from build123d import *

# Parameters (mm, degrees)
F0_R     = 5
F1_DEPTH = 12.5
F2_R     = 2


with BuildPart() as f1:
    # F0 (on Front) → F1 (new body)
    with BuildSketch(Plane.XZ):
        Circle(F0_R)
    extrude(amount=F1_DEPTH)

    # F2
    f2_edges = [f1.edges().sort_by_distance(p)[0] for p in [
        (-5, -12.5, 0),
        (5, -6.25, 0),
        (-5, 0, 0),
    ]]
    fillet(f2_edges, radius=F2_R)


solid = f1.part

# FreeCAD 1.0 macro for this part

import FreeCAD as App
import Part
import Sketcher

V = App.Vector
Q = App.Units.Quantity

doc = App.newDocument("Part")
params = doc.addObject("Spreadsheet::Sheet", "Params")
for row, (alias, value) in enumerate([
    ("sketch1_diameter", "10 mm"),
    ("pad1_length", "12.5 mm"),
    ("fillet_radius", "2 mm"),
], start=1):
    params.set(f"A{row}", alias)
    params.set(f"B{row}", "=" + value)
    params.setAlias(f"B{row}", alias)

body = doc.addObject("PartDesign::Body", "Body")

sketch1 = body.newObject("Sketcher::SketchObject", "Sketch")
sketch1.AttachmentSupport = (doc.getObject("XZ_Plane"), [""])
sketch1.MapMode = "FlatFace"
sketch1.addGeometry(Part.Circle(V(0, 0, 0), V(0, 0, 1), 5), False)
sketch1.addConstraint([
    Sketcher.Constraint("Coincident", 0, 3, -1, 1),
    Sketcher.Constraint("Diameter", 0, Q("10 mm")),
])
sketch1.setExpression("Constraints[1]", "Params.sketch1_diameter")
pad1 = body.newObject("PartDesign::Pad", "Pad")
pad1.Profile = sketch1
pad1.setExpression("Length", "Params.pad1_length")
doc.recompute()

fillet = body.newObject("PartDesign::Fillet", "Fillet")
fillet.Base = (pad1, ["Edge1"])
fillet.UseAllEdges = True
fillet.setExpression("Radius", "Params.fillet_radius")

doc.recompute()
